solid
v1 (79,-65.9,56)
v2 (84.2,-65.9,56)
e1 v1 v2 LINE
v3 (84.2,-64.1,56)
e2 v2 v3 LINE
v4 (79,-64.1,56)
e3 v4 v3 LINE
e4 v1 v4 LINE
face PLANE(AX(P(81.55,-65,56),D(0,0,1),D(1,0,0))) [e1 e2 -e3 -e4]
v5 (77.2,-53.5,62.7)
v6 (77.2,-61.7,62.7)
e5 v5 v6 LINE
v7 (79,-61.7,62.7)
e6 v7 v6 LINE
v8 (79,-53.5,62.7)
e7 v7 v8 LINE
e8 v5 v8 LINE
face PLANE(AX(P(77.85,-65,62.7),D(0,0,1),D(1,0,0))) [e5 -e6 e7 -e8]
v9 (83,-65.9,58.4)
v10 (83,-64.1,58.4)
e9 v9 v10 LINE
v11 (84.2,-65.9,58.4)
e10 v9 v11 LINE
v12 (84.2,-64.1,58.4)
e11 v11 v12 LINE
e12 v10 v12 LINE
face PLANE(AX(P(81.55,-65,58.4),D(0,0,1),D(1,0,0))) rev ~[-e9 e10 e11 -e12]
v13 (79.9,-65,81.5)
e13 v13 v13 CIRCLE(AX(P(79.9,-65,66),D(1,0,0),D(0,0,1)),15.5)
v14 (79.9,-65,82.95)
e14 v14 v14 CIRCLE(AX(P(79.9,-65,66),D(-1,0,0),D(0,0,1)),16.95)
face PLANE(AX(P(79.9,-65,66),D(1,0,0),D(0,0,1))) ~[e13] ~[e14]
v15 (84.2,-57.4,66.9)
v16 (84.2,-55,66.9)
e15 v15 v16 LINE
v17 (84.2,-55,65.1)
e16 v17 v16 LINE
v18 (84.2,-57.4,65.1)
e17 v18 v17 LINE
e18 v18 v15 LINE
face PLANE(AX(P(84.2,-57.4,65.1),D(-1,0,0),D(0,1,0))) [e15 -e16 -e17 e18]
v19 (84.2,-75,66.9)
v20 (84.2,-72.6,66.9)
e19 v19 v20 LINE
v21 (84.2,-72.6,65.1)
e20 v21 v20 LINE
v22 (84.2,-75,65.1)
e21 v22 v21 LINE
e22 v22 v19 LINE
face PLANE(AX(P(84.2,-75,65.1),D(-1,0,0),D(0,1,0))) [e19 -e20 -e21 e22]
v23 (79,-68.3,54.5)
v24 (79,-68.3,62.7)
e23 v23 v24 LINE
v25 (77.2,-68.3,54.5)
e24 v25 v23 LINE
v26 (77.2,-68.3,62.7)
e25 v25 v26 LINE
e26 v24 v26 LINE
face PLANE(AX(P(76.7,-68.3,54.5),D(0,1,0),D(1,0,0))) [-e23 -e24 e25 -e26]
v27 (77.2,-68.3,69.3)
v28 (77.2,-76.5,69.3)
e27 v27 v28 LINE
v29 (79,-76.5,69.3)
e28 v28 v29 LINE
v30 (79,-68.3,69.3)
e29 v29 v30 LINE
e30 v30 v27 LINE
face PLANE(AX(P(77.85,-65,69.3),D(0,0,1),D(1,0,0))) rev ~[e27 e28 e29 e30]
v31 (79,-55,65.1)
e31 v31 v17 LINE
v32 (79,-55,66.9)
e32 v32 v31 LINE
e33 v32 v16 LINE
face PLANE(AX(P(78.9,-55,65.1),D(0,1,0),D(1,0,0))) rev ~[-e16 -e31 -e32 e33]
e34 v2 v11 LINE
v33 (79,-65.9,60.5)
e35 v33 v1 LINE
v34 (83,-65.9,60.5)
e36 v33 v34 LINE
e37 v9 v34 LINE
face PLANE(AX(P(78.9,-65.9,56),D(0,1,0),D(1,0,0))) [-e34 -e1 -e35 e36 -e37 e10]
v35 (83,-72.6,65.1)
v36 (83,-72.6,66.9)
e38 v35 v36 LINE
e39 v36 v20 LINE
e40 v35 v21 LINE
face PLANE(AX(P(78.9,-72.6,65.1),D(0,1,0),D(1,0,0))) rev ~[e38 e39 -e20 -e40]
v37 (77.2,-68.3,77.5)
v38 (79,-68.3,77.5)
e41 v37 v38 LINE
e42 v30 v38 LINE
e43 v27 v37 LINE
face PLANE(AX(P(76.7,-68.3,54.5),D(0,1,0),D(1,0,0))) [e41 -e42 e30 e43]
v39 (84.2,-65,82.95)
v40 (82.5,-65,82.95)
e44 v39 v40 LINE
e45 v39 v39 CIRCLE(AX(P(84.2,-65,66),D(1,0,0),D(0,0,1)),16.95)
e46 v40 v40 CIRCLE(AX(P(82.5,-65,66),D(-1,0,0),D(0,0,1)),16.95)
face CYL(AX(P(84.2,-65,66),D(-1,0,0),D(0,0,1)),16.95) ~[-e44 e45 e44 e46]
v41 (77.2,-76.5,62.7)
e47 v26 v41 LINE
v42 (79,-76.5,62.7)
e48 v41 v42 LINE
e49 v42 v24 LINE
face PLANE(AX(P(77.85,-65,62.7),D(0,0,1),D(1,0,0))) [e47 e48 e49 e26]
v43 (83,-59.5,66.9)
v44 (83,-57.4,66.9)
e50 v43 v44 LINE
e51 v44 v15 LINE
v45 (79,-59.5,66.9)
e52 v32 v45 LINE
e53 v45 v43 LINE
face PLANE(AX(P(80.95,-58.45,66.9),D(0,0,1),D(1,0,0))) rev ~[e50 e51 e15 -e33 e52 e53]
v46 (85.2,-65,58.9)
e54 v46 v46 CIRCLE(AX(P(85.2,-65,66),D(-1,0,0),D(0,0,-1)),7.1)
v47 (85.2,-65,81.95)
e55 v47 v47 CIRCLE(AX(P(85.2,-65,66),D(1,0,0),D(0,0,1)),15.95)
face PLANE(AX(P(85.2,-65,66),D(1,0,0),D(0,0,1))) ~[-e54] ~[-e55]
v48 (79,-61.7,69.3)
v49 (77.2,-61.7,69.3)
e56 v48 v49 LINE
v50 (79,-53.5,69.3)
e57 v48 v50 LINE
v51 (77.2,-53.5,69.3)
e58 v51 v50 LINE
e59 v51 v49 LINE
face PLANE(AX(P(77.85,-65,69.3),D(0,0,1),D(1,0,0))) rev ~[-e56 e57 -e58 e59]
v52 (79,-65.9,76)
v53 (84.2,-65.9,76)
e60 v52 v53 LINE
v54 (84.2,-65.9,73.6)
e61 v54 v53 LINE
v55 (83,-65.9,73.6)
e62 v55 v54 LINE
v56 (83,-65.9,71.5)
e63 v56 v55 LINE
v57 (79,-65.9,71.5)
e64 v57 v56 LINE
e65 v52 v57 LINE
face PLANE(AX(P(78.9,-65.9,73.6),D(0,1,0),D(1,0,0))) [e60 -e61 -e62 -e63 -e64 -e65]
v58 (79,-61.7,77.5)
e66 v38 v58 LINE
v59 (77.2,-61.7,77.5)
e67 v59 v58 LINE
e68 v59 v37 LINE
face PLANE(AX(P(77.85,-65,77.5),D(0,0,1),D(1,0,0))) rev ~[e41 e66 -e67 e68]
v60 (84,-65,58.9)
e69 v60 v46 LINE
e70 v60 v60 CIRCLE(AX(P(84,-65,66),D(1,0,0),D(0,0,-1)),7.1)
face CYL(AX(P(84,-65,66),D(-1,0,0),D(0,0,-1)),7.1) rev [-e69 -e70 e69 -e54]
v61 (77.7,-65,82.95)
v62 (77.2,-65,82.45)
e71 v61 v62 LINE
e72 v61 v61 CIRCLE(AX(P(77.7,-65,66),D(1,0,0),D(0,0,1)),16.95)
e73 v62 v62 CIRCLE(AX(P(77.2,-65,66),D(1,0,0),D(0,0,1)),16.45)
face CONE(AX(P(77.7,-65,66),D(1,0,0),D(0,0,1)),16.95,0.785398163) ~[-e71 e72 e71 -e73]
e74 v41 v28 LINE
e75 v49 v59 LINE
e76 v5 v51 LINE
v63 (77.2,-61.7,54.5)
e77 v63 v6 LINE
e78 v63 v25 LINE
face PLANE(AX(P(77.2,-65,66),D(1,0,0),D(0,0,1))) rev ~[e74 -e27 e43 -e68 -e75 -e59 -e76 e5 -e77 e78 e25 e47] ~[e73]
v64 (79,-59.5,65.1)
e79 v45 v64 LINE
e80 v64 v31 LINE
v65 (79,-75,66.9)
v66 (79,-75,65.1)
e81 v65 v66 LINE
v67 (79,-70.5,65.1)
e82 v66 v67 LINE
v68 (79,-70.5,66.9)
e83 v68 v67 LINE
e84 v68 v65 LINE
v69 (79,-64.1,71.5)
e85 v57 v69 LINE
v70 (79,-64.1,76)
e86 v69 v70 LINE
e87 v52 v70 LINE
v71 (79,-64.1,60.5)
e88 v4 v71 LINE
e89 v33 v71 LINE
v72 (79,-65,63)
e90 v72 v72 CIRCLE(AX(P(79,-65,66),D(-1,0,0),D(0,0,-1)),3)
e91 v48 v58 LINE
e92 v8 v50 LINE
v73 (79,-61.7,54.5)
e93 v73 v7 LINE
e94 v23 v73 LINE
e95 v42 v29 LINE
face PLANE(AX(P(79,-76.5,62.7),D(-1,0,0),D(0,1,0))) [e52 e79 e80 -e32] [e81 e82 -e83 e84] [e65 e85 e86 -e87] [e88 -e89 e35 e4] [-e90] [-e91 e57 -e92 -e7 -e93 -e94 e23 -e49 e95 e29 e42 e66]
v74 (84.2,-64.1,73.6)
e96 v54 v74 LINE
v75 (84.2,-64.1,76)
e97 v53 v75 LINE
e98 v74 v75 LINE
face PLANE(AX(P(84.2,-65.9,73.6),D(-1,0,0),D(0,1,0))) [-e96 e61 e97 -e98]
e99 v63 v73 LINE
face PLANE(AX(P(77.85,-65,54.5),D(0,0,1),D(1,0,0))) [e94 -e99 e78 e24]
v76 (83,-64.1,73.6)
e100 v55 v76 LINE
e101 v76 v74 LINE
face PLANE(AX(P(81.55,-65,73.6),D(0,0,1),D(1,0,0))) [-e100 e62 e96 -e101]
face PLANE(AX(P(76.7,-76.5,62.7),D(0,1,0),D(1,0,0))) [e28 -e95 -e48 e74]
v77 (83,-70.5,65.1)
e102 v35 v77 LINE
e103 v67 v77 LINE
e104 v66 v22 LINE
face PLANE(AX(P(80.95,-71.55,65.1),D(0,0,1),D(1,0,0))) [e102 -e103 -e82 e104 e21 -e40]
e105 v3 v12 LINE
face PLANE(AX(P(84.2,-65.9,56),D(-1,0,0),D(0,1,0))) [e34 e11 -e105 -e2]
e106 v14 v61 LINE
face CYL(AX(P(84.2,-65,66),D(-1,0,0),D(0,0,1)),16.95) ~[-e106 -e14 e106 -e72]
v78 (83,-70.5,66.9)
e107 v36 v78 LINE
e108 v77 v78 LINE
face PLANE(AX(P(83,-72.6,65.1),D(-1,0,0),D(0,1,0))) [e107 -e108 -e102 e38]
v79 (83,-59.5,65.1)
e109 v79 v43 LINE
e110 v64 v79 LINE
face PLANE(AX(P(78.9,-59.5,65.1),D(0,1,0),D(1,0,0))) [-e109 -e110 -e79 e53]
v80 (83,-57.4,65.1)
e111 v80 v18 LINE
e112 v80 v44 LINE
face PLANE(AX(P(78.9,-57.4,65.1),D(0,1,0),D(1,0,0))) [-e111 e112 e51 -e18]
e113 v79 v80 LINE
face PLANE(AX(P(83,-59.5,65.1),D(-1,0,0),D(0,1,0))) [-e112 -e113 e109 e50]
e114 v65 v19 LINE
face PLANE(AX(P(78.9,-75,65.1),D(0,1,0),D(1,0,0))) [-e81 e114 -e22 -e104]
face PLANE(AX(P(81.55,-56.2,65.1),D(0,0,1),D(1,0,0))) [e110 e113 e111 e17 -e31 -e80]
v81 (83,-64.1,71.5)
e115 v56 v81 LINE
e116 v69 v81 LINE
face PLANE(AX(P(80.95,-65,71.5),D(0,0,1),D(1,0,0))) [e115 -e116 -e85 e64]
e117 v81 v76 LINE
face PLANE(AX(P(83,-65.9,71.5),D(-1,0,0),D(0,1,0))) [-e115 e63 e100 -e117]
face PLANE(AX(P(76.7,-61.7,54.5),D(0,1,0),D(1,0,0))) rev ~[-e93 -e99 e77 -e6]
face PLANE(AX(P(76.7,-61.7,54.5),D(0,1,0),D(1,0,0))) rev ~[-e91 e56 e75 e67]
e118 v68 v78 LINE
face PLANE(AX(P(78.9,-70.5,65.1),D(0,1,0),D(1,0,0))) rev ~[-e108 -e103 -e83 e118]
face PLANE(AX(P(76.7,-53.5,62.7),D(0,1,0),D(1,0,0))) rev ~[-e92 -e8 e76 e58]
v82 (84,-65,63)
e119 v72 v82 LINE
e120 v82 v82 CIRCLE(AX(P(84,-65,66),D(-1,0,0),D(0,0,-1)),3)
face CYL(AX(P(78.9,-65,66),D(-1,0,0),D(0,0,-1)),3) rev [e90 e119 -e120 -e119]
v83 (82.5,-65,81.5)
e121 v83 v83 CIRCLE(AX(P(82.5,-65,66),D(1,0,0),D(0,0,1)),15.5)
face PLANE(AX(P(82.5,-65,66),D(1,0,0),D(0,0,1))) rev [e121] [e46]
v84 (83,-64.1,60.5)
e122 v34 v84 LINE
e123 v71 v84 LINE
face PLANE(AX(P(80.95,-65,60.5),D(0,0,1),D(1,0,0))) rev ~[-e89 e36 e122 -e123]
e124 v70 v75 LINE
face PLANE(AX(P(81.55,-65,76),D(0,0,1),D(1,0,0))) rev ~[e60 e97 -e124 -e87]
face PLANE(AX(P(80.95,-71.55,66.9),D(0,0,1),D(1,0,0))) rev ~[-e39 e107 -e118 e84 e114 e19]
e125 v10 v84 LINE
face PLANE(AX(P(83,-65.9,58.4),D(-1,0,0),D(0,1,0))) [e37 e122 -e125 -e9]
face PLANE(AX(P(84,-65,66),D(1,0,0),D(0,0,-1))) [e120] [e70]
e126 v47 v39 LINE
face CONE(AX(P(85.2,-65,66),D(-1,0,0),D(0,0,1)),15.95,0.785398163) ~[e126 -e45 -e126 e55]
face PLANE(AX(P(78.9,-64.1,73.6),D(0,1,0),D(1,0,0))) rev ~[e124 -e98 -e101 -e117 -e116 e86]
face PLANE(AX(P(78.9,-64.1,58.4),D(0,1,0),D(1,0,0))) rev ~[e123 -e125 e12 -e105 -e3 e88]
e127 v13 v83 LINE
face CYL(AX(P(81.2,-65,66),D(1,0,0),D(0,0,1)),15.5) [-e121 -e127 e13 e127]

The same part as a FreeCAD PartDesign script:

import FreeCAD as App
import Part
import Sketcher

V = App.Vector
Q = App.Units.Quantity

doc = App.newDocument("Part")
body = doc.addObject("PartDesign::Body", "Body")

# Sketch on XY plane
sketch1 = body.newObject("Sketcher::SketchObject", "Sketch")
sketch1.AttachmentSupport = (doc.getObject("XY_Plane"), [""])
sketch1.MapMode = "FlatFace"
sketch1.AttachmentOffset = App.Placement(V(0, 0, 66), App.Rotation())
sketch1.addGeometry([
    Part.LineSegment(V(77.2, -65, 0), V(85.2, -65, 0)),  # 0
    Part.LineSegment(V(85.2, -65, 0), V(85.2, -49.05, 0)),  # 1
    Part.LineSegment(V(85.2, -49.05, 0), V(84.2, -48.05, 0)),  # 2
    Part.LineSegment(V(84.2, -48.05, 0), V(77.7, -48.05, 0)),  # 3
    Part.LineSegment(V(77.7, -48.05, 0), V(77.2, -48.55, 0)),  # 4
    Part.LineSegment(V(77.2, -48.55, 0), V(77.2, -65, 0)),  # 5
], False)
sketch1.addGeometry(Part.LineSegment(V(77.2, -65, 0), V(85.2, -65, 0)), True)  # axis
sketch1.addConstraint([
    Sketcher.Constraint("Coincident", 0, 2, 1, 1),
    Sketcher.Constraint("Coincident", 1, 2, 2, 1),
    Sketcher.Constraint("Coincident", 2, 2, 3, 1),
    Sketcher.Constraint("Coincident", 3, 2, 4, 1),
    Sketcher.Constraint("Coincident", 4, 2, 5, 1),
    Sketcher.Constraint("Coincident", 5, 2, 0, 1),
    Sketcher.Constraint("Horizontal", 0),
    Sketcher.Constraint("Vertical", 1),
    Sketcher.Constraint("Horizontal", 3),
    Sketcher.Constraint("Vertical", 5),
    Sketcher.Constraint("Horizontal", 6),
    Sketcher.Constraint("Coincident", 6, 1, 5, 2),
    Sketcher.Constraint("Perpendicular", 2, 4),
    Sketcher.Constraint("Vertical", 1, 2, 6, 2),
    Sketcher.Constraint("DistanceX", 0, 1, 0, 2, Q("8 mm")),
    Sketcher.Constraint("Angle", 2, Q("135 deg")),
    Sketcher.Constraint("DistanceX", 3, 2, 3, 1, Q("6.5 mm")),
    Sketcher.Constraint("DistanceY", 0, 2, -1, 1, Q("65 mm")),
    Sketcher.Constraint("DistanceX", 2, 2, 1, 2, Q("1 mm")),
    Sketcher.Constraint("DistanceY", 1, 1, 1, 2, Q("15.95 mm")),
    Sketcher.Constraint("DistanceX", -1, 1, 0, 2, Q("85.2 mm")),
])
revolution = body.newObject("PartDesign::Revolution", "Revolution")
revolution.Profile = sketch1
revolution.ReferenceAxis = (sketch1, ["Axis0"])
revolution.Angle = 360
body2 = doc.addObject("PartDesign::Body", "Body001")

# Sketch on XY plane
sketch2 = body2.newObject("Sketcher::SketchObject", "Sketch001")
sketch2.AttachmentSupport = (doc.getObject("XY_Plane001"), [""])
sketch2.MapMode = "FlatFace"
sketch2.AttachmentOffset = App.Placement(V(0, 0, 66), App.Rotation())
sketch2.addGeometry([
    Part.LineSegment(V(79.9, -47.05, 0), V(79.9, -49.5, 0)),
    Part.LineSegment(V(79.9, -49.5, 0), V(82.5, -49.5, 0)),
    Part.LineSegment(V(82.5, -49.5, 0), V(82.5, -47.05, 0)),
    Part.LineSegment(V(82.5, -47.05, 0), V(79.9, -47.05, 0)),
], False)
sketch2.addGeometry(Part.LineSegment(V(79.9, -65, 0), V(82.5, -65, 0)), True)  # axis
sketch2.addConstraint([
    Sketcher.Constraint("Coincident", 0, 2, 1, 1),
    Sketcher.Constraint("Coincident", 1, 2, 2, 1),
    Sketcher.Constraint("Coincident", 2, 2, 3, 1),
    Sketcher.Constraint("Coincident", 3, 2, 0, 1),
    Sketcher.Constraint("Vertical", 0),
    Sketcher.Constraint("Horizontal", 1),
    Sketcher.Constraint("Vertical", 2),
    Sketcher.Constraint("Horizontal", 3),
    Sketcher.Constraint("Horizontal", 4),
    Sketcher.Constraint("Vertical", 3, 2, 4, 1),
    Sketcher.Constraint("Vertical", 2, 2, 4, 2),
    Sketcher.Constraint("DistanceX", 1, 1, 1, 2, Q("2.6 mm")),
    Sketcher.Constraint("DistanceY", 4, 1, -1, 1, Q("65 mm")),
    Sketcher.Constraint("DistanceY", 0, 2, 0, 1, Q("2.45 mm")),
    Sketcher.Constraint("DistanceX", -1, 1, 0, 2, Q("79.9 mm")),
    Sketcher.Constraint("DistanceY", 0, 2, -1, 1, Q("49.5 mm")),
])
revolution2 = body2.newObject("PartDesign::Revolution", "Revolution001")
revolution2.Profile = sketch2
revolution2.ReferenceAxis = (sketch2, ["Axis0"])
revolution2.Angle = 360
doc.recompute()

boolean = body.newObject("PartDesign::Boolean", "Boolean")
boolean.Type = "Cut"
boolean.addObjects([body2])
body3 = doc.addObject("PartDesign::Body", "Body002")

# Sketch on XY plane
sketch3 = body3.newObject("Sketcher::SketchObject", "Sketch002")
sketch3.AttachmentSupport = (doc.getObject("XY_Plane002"), [""])
sketch3.MapMode = "FlatFace"
sketch3.AttachmentOffset = App.Placement(V(0, 0, 62.7), App.Rotation())
sketch3.addGeometry([
    Part.LineSegment(V(76.7, -53.5, 0), V(76.7, -76.5, 0)),
    Part.LineSegment(V(76.7, -76.5, 0), V(79, -76.5, 0)),
    Part.LineSegment(V(79, -76.5, 0), V(79, -53.5, 0)),
    Part.LineSegment(V(79, -53.5, 0), V(76.7, -53.5, 0)),
], False)
sketch3.addConstraint([
    Sketcher.Constraint("Coincident", 0, 2, 1, 1),
    Sketcher.Constraint("Coincident", 1, 2, 2, 1),
    Sketcher.Constraint("Coincident", 2, 2, 3, 1),
    Sketcher.Constraint("Coincident", 3, 2, 0, 1),
    Sketcher.Constraint("Vertical", 0),
    Sketcher.Constraint("Horizontal", 1),
    Sketcher.Constraint("Vertical", 2),
    Sketcher.Constraint("Horizontal", 3),
    Sketcher.Constraint("DistanceY", 0, 2, 0, 1, Q("23 mm")),
    Sketcher.Constraint("DistanceX", 1, 1, 1, 2, Q("2.3 mm")),
    Sketcher.Constraint("DistanceX", -1, 1, 1, 2, Q("79 mm")),
    Sketcher.Constraint("DistanceY", 0, 2, -1, 1, Q("76.5 mm")),
])
pad1 = body3.newObject("PartDesign::Pad", "Pad")
pad1.Profile = sketch3
pad1.Length = 6.6
doc.recompute()

boolean2 = body.newObject("PartDesign::Boolean", "Boolean001")
boolean2.Type = "Cut"
boolean2.addObjects([body3])
body4 = doc.addObject("PartDesign::Body", "Body003")

# Sketch on XY plane
sketch4 = body4.newObject("Sketcher::SketchObject", "Sketch003")
sketch4.AttachmentSupport = (doc.getObject("XY_Plane003"), [""])
sketch4.MapMode = "FlatFace"
sketch4.AttachmentOffset = App.Placement(V(0, 0, 54.5), App.Rotation())
sketch4.addGeometry([
    Part.LineSegment(V(76.7, -61.7, 0), V(76.7, -68.3, 0)),
    Part.LineSegment(V(76.7, -68.3, 0), V(79, -68.3, 0)),
    Part.LineSegment(V(79, -68.3, 0), V(79, -61.7, 0)),
    Part.LineSegment(V(79, -61.7, 0), V(76.7, -61.7, 0)),
], False)
sketch4.addConstraint([
    Sketcher.Constraint("Coincident", 0, 2, 1, 1),
    Sketcher.Constraint("Coincident", 1, 2, 2, 1),
    Sketcher.Constraint("Coincident", 2, 2, 3, 1),
    Sketcher.Constraint("Coincident", 3, 2, 0, 1),
    Sketcher.Constraint("Vertical", 0),
    Sketcher.Constraint("Horizontal", 1),
    Sketcher.Constraint("Vertical", 2),
    Sketcher.Constraint("Horizontal", 3),
    Sketcher.Constraint("DistanceX", 1, 1, 1, 2, Q("2.3 mm")),
    Sketcher.Constraint("DistanceY", 0, 2, 0, 1, Q("6.6 mm")),
    Sketcher.Constraint("DistanceX", -1, 1, 1, 2, Q("79 mm")),
    Sketcher.Constraint("DistanceY", 0, 2, -1, 1, Q("68.3 mm")),
])
pad2 = body4.newObject("PartDesign::Pad", "Pad001")
pad2.Profile = sketch4
pad2.Length = 23
doc.recompute()

boolean3 = body.newObject("PartDesign::Boolean", "Boolean002")
boolean3.Type = "Cut"
boolean3.addObjects([body4])
body5 = doc.addObject("PartDesign::Body", "Body004")

# Sketch on YZ plane
sketch5 = body5.newObject("Sketcher::SketchObject", "Sketch004")
sketch5.AttachmentSupport = (doc.getObject("YZ_Plane004"), [""])
sketch5.MapMode = "FlatFace"
sketch5.AttachmentOffset = App.Placement(V(0, 0, 76.7), App.Rotation())
sketch5.addGeometry(Part.Circle(V(-65, 66, 0), V(0, 0, 1), 4.6), False)
sketch5.addConstraint([
    Sketcher.Constraint("Diameter", 0, Q("9.2 mm")),
    Sketcher.Constraint("DistanceX", 0, 3, -1, 1, Q("65 mm")),
    Sketcher.Constraint("DistanceY", -1, 1, 0, 3, Q("66 mm")),
])
pad3 = body5.newObject("PartDesign::Pad", "Pad002")
pad3.Profile = sketch5
pad3.Length = 2.3
doc.recompute()

boolean4 = body.newObject("PartDesign::Boolean", "Boolean003")
boolean4.Type = "Cut"
boolean4.addObjects([body5])
body6 = doc.addObject("PartDesign::Body", "Body005")

# Sketch on YZ plane
sketch6 = body6.newObject("Sketcher::SketchObject", "Sketch005")
sketch6.AttachmentSupport = (doc.getObject("YZ_Plane005"), [""])
sketch6.MapMode = "FlatFace"
sketch6.AttachmentOffset = App.Placement(V(0, 0, 84), App.Rotation())
sketch6.addGeometry(Part.Circle(V(-65, 66, 0), V(0, 0, 1), 7.1), False)
sketch6.addConstraint([
    Sketcher.Constraint("Diameter", 0, Q("14.2 mm")),
    Sketcher.Constraint("DistanceX", 0, 3, -1, 1, Q("65 mm")),
    Sketcher.Constraint("DistanceY", -1, 1, 0, 3, Q("66 mm")),
])
pad4 = body6.newObject("PartDesign::Pad", "Pad003")
pad4.Profile = sketch6
pad4.Length = 1.7
doc.recompute()

boolean5 = body.newObject("PartDesign::Boolean", "Boolean004")
boolean5.Type = "Cut"
boolean5.addObjects([body6])
body7 = doc.addObject("PartDesign::Body", "Body006")

# Sketch on YZ plane
sketch7 = body7.newObject("Sketcher::SketchObject", "Sketch006")
sketch7.AttachmentSupport = (doc.getObject("YZ_Plane006"), [""])
sketch7.MapMode = "FlatFace"
sketch7.AttachmentOffset = App.Placement(V(0, 0, 78.9), App.Rotation())
sketch7.addGeometry(Part.Circle(V(-65, 66, 0), V(0, 0, 1), 3), False)
sketch7.addConstraint([
    Sketcher.Constraint("Diameter", 0, Q("6 mm")),
    Sketcher.Constraint("DistanceX", 0, 3, -1, 1, Q("65 mm")),
    Sketcher.Constraint("DistanceY", -1, 1, 0, 3, Q("66 mm")),
])
pad5 = body7.newObject("PartDesign::Pad", "Pad004")
pad5.Profile = sketch7
pad5.Length = 5.2
doc.recompute()

boolean6 = body.newObject("PartDesign::Boolean", "Boolean005")
boolean6.Type = "Cut"
boolean6.addObjects([body7])
body8 = doc.addObject("PartDesign::Body", "Body007")

# Sketch on XY plane
sketch8 = body8.newObject("Sketcher::SketchObject", "Sketch007")
sketch8.AttachmentSupport = (doc.getObject("XY_Plane007"), [""])
sketch8.MapMode = "FlatFace"
sketch8.AttachmentOffset = App.Placement(V(0, 0, 65.1), App.Rotation())
sketch8.addGeometry([
    Part.LineSegment(V(78.9, -57.4, 0), V(78.9, -59.5, 0)),
    Part.LineSegment(V(78.9, -59.5, 0), V(83, -59.5, 0)),
    Part.LineSegment(V(83, -59.5, 0), V(83, -57.4, 0)),
    Part.LineSegment(V(83, -57.4, 0), V(78.9, -57.4, 0)),
], False)
sketch8.addConstraint([
    Sketcher.Constraint("Coincident", 0, 2, 1, 1),
    Sketcher.Constraint("Coincident", 1, 2, 2, 1),
    Sketcher.Constraint("Coincident", 2, 2, 3, 1),
    Sketcher.Constraint("Coincident", 3, 2, 0, 1),
    Sketcher.Constraint("Vertical", 0),
    Sketcher.Constraint("Horizontal", 1),
    Sketcher.Constraint("Vertical", 2),
    Sketcher.Constraint("Horizontal", 3),
    Sketcher.Constraint("DistanceX", 1, 1, 1, 2, Q("4.1 mm")),
    Sketcher.Constraint("DistanceY", 0, 2, 0, 1, Q("2.1 mm")),
    Sketcher.Constraint("DistanceX", -1, 1, 1, 2, Q("83 mm")),
    Sketcher.Constraint("DistanceY", 0, 2, -1, 1, Q("59.5 mm")),
])
pad6 = body8.newObject("PartDesign::Pad", "Pad005")
pad6.Profile = sketch8
pad6.Length = 1.8
doc.recompute()

boolean7 = body.newObject("PartDesign::Boolean", "Boolean006")
boolean7.Type = "Cut"
boolean7.addObjects([body8])
body9 = doc.addObject("PartDesign::Body", "Body008")

# Sketch on XY plane
sketch9 = body9.newObject("Sketcher::SketchObject", "Sketch008")
sketch9.AttachmentSupport = (doc.getObject("XY_Plane008"), [""])
sketch9.MapMode = "FlatFace"
sketch9.AttachmentOffset = App.Placement(V(0, 0, 71.5), App.Rotation())
sketch9.addGeometry([
    Part.LineSegment(V(78.9, -64.1, 0), V(78.9, -65.9, 0)),
    Part.LineSegment(V(78.9, -65.9, 0), V(83, -65.9, 0)),
    Part.LineSegment(V(83, -65.9, 0), V(83, -64.1, 0)),
    Part.LineSegment(V(83, -64.1, 0), V(78.9, -64.1, 0)),
], False)
sketch9.addConstraint([
    Sketcher.Constraint("Coincident", 0, 2, 1, 1),
    Sketcher.Constraint("Coincident", 1, 2, 2, 1),
    Sketcher.Constraint("Coincident", 2, 2, 3, 1),
    Sketcher.Constraint("Coincident", 3, 2, 0, 1),
    Sketcher.Constraint("Vertical", 0),
    Sketcher.Constraint("Horizontal", 1),
    Sketcher.Constraint("Vertical", 2),
    Sketcher.Constraint("Horizontal", 3),
    Sketcher.Constraint("DistanceX", 1, 1, 1, 2, Q("4.1 mm")),
    Sketcher.Constraint("DistanceY", 0, 2, 0, 1, Q("1.8 mm")),
    Sketcher.Constraint("DistanceX", -1, 1, 1, 2, Q("83 mm")),
    Sketcher.Constraint("DistanceY", 0, 2, -1, 1, Q("65.9 mm")),
])
pad7 = body9.newObject("PartDesign::Pad", "Pad006")
pad7.Profile = sketch9
pad7.Length = 2.1
doc.recompute()

boolean8 = body.newObject("PartDesign::Boolean", "Boolean007")
boolean8.Type = "Cut"
boolean8.addObjects([body9])
body10 = doc.addObject("PartDesign::Body", "Body009")

# Sketch on XY plane
sketch10 = body10.newObject("Sketcher::SketchObject", "Sketch009")
sketch10.AttachmentSupport = (doc.getObject("XY_Plane009"), [""])
sketch10.MapMode = "FlatFace"
sketch10.AttachmentOffset = App.Placement(V(0, 0, 65.1), App.Rotation())
sketch10.addGeometry([
    Part.LineSegment(V(78.9, -70.5, 0), V(78.9, -72.6, 0)),
    Part.LineSegment(V(78.9, -72.6, 0), V(83, -72.6, 0)),
    Part.LineSegment(V(83, -72.6, 0), V(83, -70.5, 0)),
    Part.LineSegment(V(83, -70.5, 0), V(78.9, -70.5, 0)),
], False)
sketch10.addConstraint([
    Sketcher.Constraint("Coincident", 0, 2, 1, 1),
    Sketcher.Constraint("Coincident", 1, 2, 2, 1),
    Sketcher.Constraint("Coincident", 2, 2, 3, 1),
    Sketcher.Constraint("Coincident", 3, 2, 0, 1),
    Sketcher.Constraint("Vertical", 0),
    Sketcher.Constraint("Horizontal", 1),
    Sketcher.Constraint("Vertical", 2),
    Sketcher.Constraint("Horizontal", 3),
    Sketcher.Constraint("DistanceX", 1, 1, 1, 2, Q("4.1 mm")),
    Sketcher.Constraint("DistanceY", 0, 2, 0, 1, Q("2.1 mm")),
    Sketcher.Constraint("DistanceX", -1, 1, 1, 2, Q("83 mm")),
    Sketcher.Constraint("DistanceY", 0, 2, -1, 1, Q("72.6 mm")),
])
pad8 = body10.newObject("PartDesign::Pad", "Pad007")
pad8.Profile = sketch10
pad8.Length = 1.8
doc.recompute()

boolean9 = body.newObject("PartDesign::Boolean", "Boolean008")
boolean9.Type = "Cut"
boolean9.addObjects([body10])
body11 = doc.addObject("PartDesign::Body", "Body010")

# Sketch on XY plane
sketch11 = body11.newObject("Sketcher::SketchObject", "Sketch010")
sketch11.AttachmentSupport = (doc.getObject("XY_Plane010"), [""])
sketch11.MapMode = "FlatFace"
sketch11.AttachmentOffset = App.Placement(V(0, 0, 58.4), App.Rotation())
sketch11.addGeometry([
    Part.LineSegment(V(78.9, -64.1, 0), V(78.9, -65.9, 0)),
    Part.LineSegment(V(78.9, -65.9, 0), V(83, -65.9, 0)),
    Part.LineSegment(V(83, -65.9, 0), V(83, -64.1, 0)),
    Part.LineSegment(V(83, -64.1, 0), V(78.9, -64.1, 0)),
], False)
sketch11.addConstraint([
    Sketcher.Constraint("Coincident", 0, 2, 1, 1),
    Sketcher.Constraint("Coincident", 1, 2, 2, 1),
    Sketcher.Constraint("Coincident", 2, 2, 3, 1),
    Sketcher.Constraint("Coincident", 3, 2, 0, 1),
    Sketcher.Constraint("Vertical", 0),
    Sketcher.Constraint("Horizontal", 1),
    Sketcher.Constraint("Vertical", 2),
    Sketcher.Constraint("Horizontal", 3),
    Sketcher.Constraint("DistanceX", 1, 1, 1, 2, Q("4.1 mm")),
    Sketcher.Constraint("DistanceY", 0, 2, 0, 1, Q("1.8 mm")),
    Sketcher.Constraint("DistanceX", -1, 1, 1, 2, Q("83 mm")),
    Sketcher.Constraint("DistanceY", 0, 2, -1, 1, Q("65.9 mm")),
])
pad9 = body11.newObject("PartDesign::Pad", "Pad008")
pad9.Profile = sketch11
pad9.Length = 2.1
doc.recompute()

boolean10 = body.newObject("PartDesign::Boolean", "Boolean009")
boolean10.Type = "Cut"
boolean10.addObjects([body11])
body12 = doc.addObject("PartDesign::Body", "Body011")

# Sketch on XY plane
sketch12 = body12.newObject("Sketcher::SketchObject", "Sketch011")
sketch12.AttachmentSupport = (doc.getObject("XY_Plane011"), [""])
sketch12.MapMode = "FlatFace"
sketch12.AttachmentOffset = App.Placement(V(0, 0, 65.1), App.Rotation())
sketch12.addGeometry([
    Part.LineSegment(V(78.9, -55, 0), V(78.9, -57.4, 0)),
    Part.LineSegment(V(78.9, -57.4, 0), V(84.2, -57.4, 0)),
    Part.LineSegment(V(84.2, -57.4, 0), V(84.2, -55, 0)),
    Part.LineSegment(V(84.2, -55, 0), V(78.9, -55, 0)),
], False)
sketch12.addConstraint([
    Sketcher.Constraint("Coincident", 0, 2, 1, 1),
    Sketcher.Constraint("Coincident", 1, 2, 2, 1),
    Sketcher.Constraint("Coincident", 2, 2, 3, 1),
    Sketcher.Constraint("Coincident", 3, 2, 0, 1),
    Sketcher.Constraint("Vertical", 0),
    Sketcher.Constraint("Horizontal", 1),
    Sketcher.Constraint("Vertical", 2),
    Sketcher.Constraint("Horizontal", 3),
    Sketcher.Constraint("DistanceX", 1, 1, 1, 2, Q("5.3 mm")),
    Sketcher.Constraint("DistanceY", 0, 2, 0, 1, Q("2.4 mm")),
    Sketcher.Constraint("DistanceY", 2, 2, -1, 1, Q("55 mm")),
    Sketcher.Constraint("DistanceX", -1, 1, 0, 2, Q("78.9 mm")),
])
pad10 = body12.newObject("PartDesign::Pad", "Pad009")
pad10.Profile = sketch12
pad10.Length = 1.8
doc.recompute()

boolean11 = body.newObject("PartDesign::Boolean", "Boolean010")
boolean11.Type = "Cut"
boolean11.addObjects([body12])
body13 = doc.addObject("PartDesign::Body", "Body012")

# Sketch on XY plane
sketch13 = body13.newObject("Sketcher::SketchObject", "Sketch012")
sketch13.AttachmentSupport = (doc.getObject("XY_Plane012"), [""])
sketch13.MapMode = "FlatFace"
sketch13.AttachmentOffset = App.Placement(V(0, 0, 73.6), App.Rotation())
sketch13.addGeometry([
    Part.LineSegment(V(78.9, -64.1, 0), V(78.9, -65.9, 0)),
    Part.LineSegment(V(78.9, -65.9, 0), V(84.2, -65.9, 0)),
    Part.LineSegment(V(84.2, -65.9, 0), V(84.2, -64.1, 0)),
    Part.LineSegment(V(84.2, -64.1, 0), V(78.9, -64.1, 0)),
], False)
sketch13.addConstraint([
    Sketcher.Constraint("Coincident", 0, 2, 1, 1),
    Sketcher.Constraint("Coincident", 1, 2, 2, 1),
    Sketcher.Constraint("Coincident", 2, 2, 3, 1),
    Sketcher.Constraint("Coincident", 3, 2, 0, 1),
    Sketcher.Constraint("Vertical", 0),
    Sketcher.Constraint("Horizontal", 1),
    Sketcher.Constraint("Vertical", 2),
    Sketcher.Constraint("Horizontal", 3),
    Sketcher.Constraint("DistanceX", 1, 1, 1, 2, Q("5.3 mm")),
    Sketcher.Constraint("DistanceY", 0, 2, 0, 1, Q("1.8 mm")),
    Sketcher.Constraint("DistanceX", -1, 1, 0, 2, Q("78.9 mm")),
    Sketcher.Constraint("DistanceY", 0, 2, -1, 1, Q("65.9 mm")),
])
pad11 = body13.newObject("PartDesign::Pad", "Pad010")
pad11.Profile = sketch13
pad11.Length = 2.4
doc.recompute()

boolean12 = body.newObject("PartDesign::Boolean", "Boolean011")
boolean12.Type = "Cut"
boolean12.addObjects([body13])
body14 = doc.addObject("PartDesign::Body", "Body013")

# Sketch on XY plane
sketch14 = body14.newObject("Sketcher::SketchObject", "Sketch013")
sketch14.AttachmentSupport = (doc.getObject("XY_Plane013"), [""])
sketch14.MapMode = "FlatFace"
sketch14.AttachmentOffset = App.Placement(V(0, 0, 65.1), App.Rotation())
sketch14.addGeometry([
    Part.LineSegment(V(78.9, -72.6, 0), V(78.9, -75, 0)),
    Part.LineSegment(V(78.9, -75, 0), V(84.2, -75, 0)),
    Part.LineSegment(V(84.2, -75, 0), V(84.2, -72.6, 0)),
    Part.LineSegment(V(84.2, -72.6, 0), V(78.9, -72.6, 0)),
], False)
sketch14.addConstraint([
    Sketcher.Constraint("Coincident", 0, 2, 1, 1),
    Sketcher.Constraint("Coincident", 1, 2, 2, 1),
    Sketcher.Constraint("Coincident", 2, 2, 3, 1),
    Sketcher.Constraint("Coincident", 3, 2, 0, 1),
    Sketcher.Constraint("Vertical", 0),
    Sketcher.Constraint("Horizontal", 1),
    Sketcher.Constraint("Vertical", 2),
    Sketcher.Constraint("Horizontal", 3),
    Sketcher.Constraint("DistanceX", 1, 1, 1, 2, Q("5.3 mm")),
    Sketcher.Constraint("DistanceY", 0, 2, 0, 1, Q("2.4 mm")),
    Sketcher.Constraint("DistanceY", 0, 2, -1, 1, Q("75 mm")),
    Sketcher.Constraint("DistanceX", -1, 1, 0, 2, Q("78.9 mm")),
])
pad12 = body14.newObject("PartDesign::Pad", "Pad011")
pad12.Profile = sketch14
pad12.Length = 1.8
doc.recompute()

boolean13 = body.newObject("PartDesign::Boolean", "Boolean012")
boolean13.Type = "Cut"
boolean13.addObjects([body14])
body15 = doc.addObject("PartDesign::Body", "Body014")

# Sketch on XY plane
sketch15 = body15.newObject("Sketcher::SketchObject", "Sketch014")
sketch15.AttachmentSupport = (doc.getObject("XY_Plane014"), [""])
sketch15.MapMode = "FlatFace"
sketch15.AttachmentOffset = App.Placement(V(0, 0, 56), App.Rotation())
sketch15.addGeometry([
    Part.LineSegment(V(78.9, -64.1, 0), V(78.9, -65.9, 0)),
    Part.LineSegment(V(78.9, -65.9, 0), V(84.2, -65.9, 0)),
    Part.LineSegment(V(84.2, -65.9, 0), V(84.2, -64.1, 0)),
    Part.LineSegment(V(84.2, -64.1, 0), V(78.9, -64.1, 0)),
], False)
sketch15.addConstraint([
    Sketcher.Constraint("Coincident", 0, 2, 1, 1),
    Sketcher.Constraint("Coincident", 1, 2, 2, 1),
    Sketcher.Constraint("Coincident", 2, 2, 3, 1),
    Sketcher.Constraint("Coincident", 3, 2, 0, 1),
    Sketcher.Constraint("Vertical", 0),
    Sketcher.Constraint("Horizontal", 1),
    Sketcher.Constraint("Vertical", 2),
    Sketcher.Constraint("Horizontal", 3),
    Sketcher.Constraint("DistanceX", 1, 1, 1, 2, Q("5.3 mm")),
    Sketcher.Constraint("DistanceY", 0, 2, 0, 1, Q("1.8 mm")),
    Sketcher.Constraint("DistanceX", -1, 1, 0, 2, Q("78.9 mm")),
    Sketcher.Constraint("DistanceY", 0, 2, -1, 1, Q("65.9 mm")),
])
pad13 = body15.newObject("PartDesign::Pad", "Pad012")
pad13.Profile = sketch15
pad13.Length = 2.4
doc.recompute()

boolean14 = body.newObject("PartDesign::Boolean", "Boolean013")
boolean14.Type = "Cut"
boolean14.addObjects([body15])

doc.recompute()
